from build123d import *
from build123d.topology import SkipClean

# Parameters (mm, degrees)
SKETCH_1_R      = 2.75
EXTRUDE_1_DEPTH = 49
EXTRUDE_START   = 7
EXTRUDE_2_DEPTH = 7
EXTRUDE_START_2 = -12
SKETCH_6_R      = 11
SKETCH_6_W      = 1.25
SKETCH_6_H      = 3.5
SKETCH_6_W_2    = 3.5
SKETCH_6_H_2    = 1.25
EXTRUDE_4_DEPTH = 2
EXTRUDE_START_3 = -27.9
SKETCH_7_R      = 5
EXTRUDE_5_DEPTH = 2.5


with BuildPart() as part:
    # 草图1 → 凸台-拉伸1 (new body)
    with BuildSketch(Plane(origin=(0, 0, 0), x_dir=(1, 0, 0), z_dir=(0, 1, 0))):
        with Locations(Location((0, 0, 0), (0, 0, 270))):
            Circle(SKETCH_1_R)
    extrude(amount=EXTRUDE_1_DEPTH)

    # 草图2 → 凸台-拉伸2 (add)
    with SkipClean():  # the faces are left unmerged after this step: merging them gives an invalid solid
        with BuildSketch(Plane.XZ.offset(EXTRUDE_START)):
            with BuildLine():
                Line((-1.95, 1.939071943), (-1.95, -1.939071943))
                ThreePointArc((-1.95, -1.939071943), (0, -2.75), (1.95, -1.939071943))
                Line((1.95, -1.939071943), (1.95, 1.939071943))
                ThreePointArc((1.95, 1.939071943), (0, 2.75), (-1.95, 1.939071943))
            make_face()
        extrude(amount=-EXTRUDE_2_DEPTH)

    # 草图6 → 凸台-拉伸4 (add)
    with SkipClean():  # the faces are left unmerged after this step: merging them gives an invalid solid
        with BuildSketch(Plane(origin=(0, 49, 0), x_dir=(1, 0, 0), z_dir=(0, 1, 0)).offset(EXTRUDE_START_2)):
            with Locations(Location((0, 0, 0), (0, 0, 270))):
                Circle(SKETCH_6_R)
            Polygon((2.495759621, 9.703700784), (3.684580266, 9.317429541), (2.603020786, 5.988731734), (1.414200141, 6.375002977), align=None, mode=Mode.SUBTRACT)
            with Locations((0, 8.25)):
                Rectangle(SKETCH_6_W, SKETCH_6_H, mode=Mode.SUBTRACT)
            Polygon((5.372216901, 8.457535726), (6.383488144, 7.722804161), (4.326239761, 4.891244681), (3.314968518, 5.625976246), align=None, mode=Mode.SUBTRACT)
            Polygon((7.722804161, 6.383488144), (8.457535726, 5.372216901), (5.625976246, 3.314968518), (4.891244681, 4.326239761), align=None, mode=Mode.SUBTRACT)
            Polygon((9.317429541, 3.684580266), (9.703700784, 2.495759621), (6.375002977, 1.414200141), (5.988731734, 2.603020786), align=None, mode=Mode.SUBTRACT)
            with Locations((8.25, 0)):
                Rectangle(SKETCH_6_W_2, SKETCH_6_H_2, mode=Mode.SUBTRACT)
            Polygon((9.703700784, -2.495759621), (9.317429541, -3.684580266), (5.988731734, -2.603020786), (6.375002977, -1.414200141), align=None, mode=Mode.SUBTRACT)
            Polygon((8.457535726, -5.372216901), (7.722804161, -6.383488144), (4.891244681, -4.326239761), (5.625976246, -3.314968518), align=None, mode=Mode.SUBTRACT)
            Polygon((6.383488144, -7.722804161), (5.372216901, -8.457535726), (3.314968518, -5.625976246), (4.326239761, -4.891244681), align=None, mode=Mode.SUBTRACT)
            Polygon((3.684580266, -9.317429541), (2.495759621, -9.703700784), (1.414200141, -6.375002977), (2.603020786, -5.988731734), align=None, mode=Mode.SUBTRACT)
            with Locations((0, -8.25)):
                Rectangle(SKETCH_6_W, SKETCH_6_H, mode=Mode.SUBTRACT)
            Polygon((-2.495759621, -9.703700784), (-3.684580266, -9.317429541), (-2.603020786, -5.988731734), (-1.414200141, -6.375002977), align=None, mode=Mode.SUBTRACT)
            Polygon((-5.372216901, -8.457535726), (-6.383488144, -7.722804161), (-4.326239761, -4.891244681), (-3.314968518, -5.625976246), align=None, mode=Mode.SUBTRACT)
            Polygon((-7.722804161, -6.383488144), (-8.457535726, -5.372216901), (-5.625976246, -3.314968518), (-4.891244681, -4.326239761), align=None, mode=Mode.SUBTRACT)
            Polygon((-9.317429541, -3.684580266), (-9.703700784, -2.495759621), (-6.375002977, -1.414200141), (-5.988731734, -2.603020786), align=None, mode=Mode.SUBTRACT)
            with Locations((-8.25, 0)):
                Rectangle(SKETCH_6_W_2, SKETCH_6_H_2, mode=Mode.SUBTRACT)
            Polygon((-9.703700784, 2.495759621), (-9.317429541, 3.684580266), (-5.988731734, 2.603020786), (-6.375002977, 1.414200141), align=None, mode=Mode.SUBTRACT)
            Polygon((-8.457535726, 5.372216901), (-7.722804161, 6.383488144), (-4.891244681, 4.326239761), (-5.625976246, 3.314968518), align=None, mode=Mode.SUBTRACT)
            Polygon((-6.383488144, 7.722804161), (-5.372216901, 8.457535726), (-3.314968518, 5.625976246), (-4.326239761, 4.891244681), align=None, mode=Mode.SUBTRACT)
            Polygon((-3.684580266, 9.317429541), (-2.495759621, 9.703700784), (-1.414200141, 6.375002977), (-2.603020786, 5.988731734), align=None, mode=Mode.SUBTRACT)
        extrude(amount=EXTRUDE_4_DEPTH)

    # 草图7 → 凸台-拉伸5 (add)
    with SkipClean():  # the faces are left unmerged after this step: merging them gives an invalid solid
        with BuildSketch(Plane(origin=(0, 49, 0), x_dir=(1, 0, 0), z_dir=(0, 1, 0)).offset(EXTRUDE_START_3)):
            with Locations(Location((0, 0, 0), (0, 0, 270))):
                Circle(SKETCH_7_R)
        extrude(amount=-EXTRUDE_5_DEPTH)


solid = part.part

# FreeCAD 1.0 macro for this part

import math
import FreeCAD as App
import Part
import Sketcher
Q = App.Units.Quantity


def add_polygon(sketch, points):
    """Adds a closed chain of lines whose ends are joined by coincident constraints."""
    first, n = sketch.GeometryCount, len(points)
    for a, b in zip(points, points[1:] + points[:1]):
        sketch.addGeometry(Part.LineSegment(App.Vector(*a, 0), App.Vector(*b, 0)), False)
    for i in range(n):
        sketch.addConstraint(Sketcher.Constraint("Coincident", first + i, 2, first + (i + 1) % n, 1))

doc = App.newDocument("Part")
params = doc.addObject("Spreadsheet::Sheet", "Params")
for row, (alias, value) in enumerate([
    ("sketch1_diameter", "5.5 mm"),
    ("pad1_length", "49 mm"),
    ("sketch2_radius", "2.75 mm"),
    ("pad2_length", "7 mm"),
    ("sketch3_diameter", "22 mm"),
    ("sketch3_width", "3.5 mm"),
    ("sketch3_length", "3.5 mm"),
    ("sketch3_width2", "1.25 mm"),
    ("sketch3_length2", "1.25 mm"),
    ("pad3_length", "2 mm"),
    ("sketch4_diameter", "10 mm"),
    ("pad4_length", "2.5 mm"),
], start=1):
    params.set(f"A{row}", alias)
    params.set(f"B{row}", "=" + value)
    params.setAlias(f"B{row}", alias)

body = doc.addObject("PartDesign::Body", "Body")

# Sketch on XZ plane
sketch1 = body.newObject("Sketcher::SketchObject", "Sketch")
sketch1.AttachmentSupport = (doc.getObject("XZ_Plane"), [""])
sketch1.MapMode = "FlatFace"
sketch1.addGeometry(Part.Circle(App.Vector(0, 0, 0), App.Vector(0, 0, 1), 2.8), False)
sketch1.addConstraint(Sketcher.Constraint("Coincident", 0, 3, -1, 1))
sketch1.addConstraint(Sketcher.Constraint("Diameter", 0, 5.5))
sketch1.setExpression("Constraints[1]", "Params.sketch1_diameter")
pad1 = body.newObject("PartDesign::Pad", "Pad")
pad1.Profile = sketch1
pad1.setExpression("Length", "Params.pad1_length")
pad1.Reversed = True

# Sketch on XZ plane
sketch2 = body.newObject("Sketcher::SketchObject", "Sketch001")
sketch2.AttachmentSupport = (doc.getObject("XZ_Plane"), [""])
sketch2.MapMode = "FlatFace"
sketch2.AttachmentOffset = App.Placement(App.Vector(0, 0, 7), App.Rotation())
sketch2.addGeometry(Part.LineSegment(App.Vector(-1.9, 1.9, 0), App.Vector(-1.9, -1.9, 0)), False)
sketch2.addGeometry(Part.ArcOfCircle(Part.Circle(App.Vector(0, 0, 0), App.Vector(0, 0, 1), 2.8), math.radians(-135), math.radians(-45)), False)
sketch2.addGeometry(Part.LineSegment(App.Vector(1.9, -1.9, 0), App.Vector(1.9, 1.9, 0)), False)
sketch2.addGeometry(Part.ArcOfCircle(Part.Circle(App.Vector(0, 0, 0), App.Vector(0, 0, 1), 2.8), math.radians(45), math.radians(135)), False)
sketch2.addConstraint(Sketcher.Constraint("Coincident", 0, 2, 1, 1))
sketch2.addConstraint(Sketcher.Constraint("Coincident", 1, 2, 2, 1))
sketch2.addConstraint(Sketcher.Constraint("Coincident", 2, 2, 3, 1))
sketch2.addConstraint(Sketcher.Constraint("Coincident", 3, 2, 0, 1))
sketch2.addConstraint(Sketcher.Constraint("Vertical", 0))
sketch2.addConstraint(Sketcher.Constraint("Vertical", 2))
sketch2.addConstraint(Sketcher.Constraint("Coincident", 1, 3, -1, 1))
sketch2.addConstraint(Sketcher.Constraint("Coincident", 3, 3, -1, 1))
sketch2.addConstraint(Sketcher.Constraint("Equal", 1, 3))
sketch2.addConstraint(Sketcher.Constraint("Horizontal", 0, 2, 1, 2))
sketch2.addConstraint(Sketcher.Constraint("Radius", 1, 2.75))
sketch2.addConstraint(Sketcher.Constraint("DistanceX", 0, 2, 1, 2, 3.9))
sketch2.setExpression("Constraints[10]", "Params.sketch2_radius")
pad2 = body.newObject("PartDesign::Pad", "Pad001")
pad2.Profile = sketch2
pad2.setExpression("Length", "Params.pad2_length")
pad2.Reversed = True

# Sketch on XZ plane
sketch3 = body.newObject("Sketcher::SketchObject", "Sketch002")
sketch3.AttachmentSupport = (doc.getObject("XZ_Plane"), [""])
sketch3.MapMode = "FlatFace"
sketch3.AttachmentOffset = App.Placement(App.Vector(0, 0, -37), App.Rotation())
sketch3.addGeometry(Part.Circle(App.Vector(0, 0, 0), App.Vector(0, 0, 1), 11), False)  # 0
add_polygon(sketch3, [(-6.4, -1.4), (-9.7, -2.5), (-9.3, -3.7), (-6, -2.6)])  # lines 1-4
add_polygon(sketch3, [(-5.6, -3.3), (-8.5, -5.4), (-7.7, -6.4), (-4.9, -4.3)])  # lines 5-8
add_polygon(sketch3, [(-2.6, -6), (-3.7, -9.3), (-2.5, -9.7), (-1.4, -6.4)])  # lines 9-12
add_polygon(sketch3, [(-4.3, -4.9), (-6.4, -7.7), (-5.4, -8.5), (-3.3, -5.6)])  # lines 13-16
add_polygon(sketch3, [(0.6, -6.5), (-0.6, -6.5), (-0.6, -10), (0.6, -10)])  # lines 17-20
add_polygon(sketch3, [(-6.5, 0.6), (-10, 0.6), (-10, -0.6), (-6.5, -0.6)])  # lines 21-24
add_polygon(sketch3, [(-6, 2.6), (-9.3, 3.7), (-9.7, 2.5), (-6.4, 1.4)])  # lines 25-28
add_polygon(sketch3, [(-4.9, 4.3), (-7.7, 6.4), (-8.5, 5.4), (-5.6, 3.3)])  # lines 29-32
add_polygon(sketch3, [(-3.3, 5.6), (-5.4, 8.5), (-6.4, 7.7), (-4.3, 4.9)])  # lines 33-36
add_polygon(sketch3, [(-1.4, 6.4), (-2.5, 9.7), (-3.7, 9.3), (-2.6, 6)])  # lines 37-40
add_polygon(sketch3, [(1.4, -6.4), (2.5, -9.7), (3.7, -9.3), (2.6, -6)])  # lines 41-44
add_polygon(sketch3, [(3.3, -5.6), (5.4, -8.5), (6.4, -7.7), (4.3, -4.9)])  # lines 45-48
add_polygon(sketch3, [(4.9, -4.3), (7.7, -6.4), (8.5, -5.4), (5.6, -3.3)])  # lines 49-52
add_polygon(sketch3, [(6, -2.6), (9.3, -3.7), (9.7, -2.5), (6.4, -1.4)])  # lines 53-56
add_polygon(sketch3, [(10, 0.6), (6.5, 0.6), (6.5, -0.6), (10, -0.6)])  # lines 57-60
add_polygon(sketch3, [(0.6, 10), (-0.6, 10), (-0.6, 6.5), (0.6, 6.5)])  # lines 61-64
add_polygon(sketch3, [(4.3, 4.9), (6.4, 7.7), (5.4, 8.5), (3.3, 5.6)])  # lines 65-68
add_polygon(sketch3, [(2.6, 6), (3.7, 9.3), (2.5, 9.7), (1.4, 6.4)])  # lines 69-72
add_polygon(sketch3, [(5.6, 3.3), (8.5, 5.4), (7.7, 6.4), (4.9, 4.3)])  # lines 73-76
add_polygon(sketch3, [(6.4, 1.4), (9.7, 2.5), (9.3, 3.7), (6, 2.6)])  # lines 77-80
sketch3.addConstraint(Sketcher.Constraint("Horizontal", 17))
sketch3.addConstraint(Sketcher.Constraint("Vertical", 18))
sketch3.addConstraint(Sketcher.Constraint("Horizontal", 19))
sketch3.addConstraint(Sketcher.Constraint("Vertical", 20))
sketch3.addConstraint(Sketcher.Constraint("Horizontal", 21))
sketch3.addConstraint(Sketcher.Constraint("Vertical", 22))
sketch3.addConstraint(Sketcher.Constraint("Horizontal", 23))
sketch3.addConstraint(Sketcher.Constraint("Vertical", 24))
sketch3.addConstraint(Sketcher.Constraint("Horizontal", 57))
sketch3.addConstraint(Sketcher.Constraint("Vertical", 58))
sketch3.addConstraint(Sketcher.Constraint("Horizontal", 59))
sketch3.addConstraint(Sketcher.Constraint("Vertical", 60))
sketch3.addConstraint(Sketcher.Constraint("Horizontal", 61))
sketch3.addConstraint(Sketcher.Constraint("Vertical", 62))
sketch3.addConstraint(Sketcher.Constraint("Horizontal", 63))
sketch3.addConstraint(Sketcher.Constraint("Vertical", 64))
sketch3.addConstraint(Sketcher.Constraint("Coincident", 0, 3, -1, 1))
sketch3.addConstraint(Sketcher.Constraint("Symmetric", 37, 2, 41, 2, -1, 1))
sketch3.addConstraint(Sketcher.Constraint("Symmetric", 38, 2, 42, 2, -1, 1))
sketch3.addConstraint(Sketcher.Constraint("Symmetric", 39, 2, 43, 2, -1, 1))
sketch3.addConstraint(Sketcher.Constraint("Symmetric", 40, 2, 44, 2, -1, 1))
sketch3.addConstraint(Sketcher.Constraint("Symmetric", 33, 2, 45, 2, -1, 1))
sketch3.addConstraint(Sketcher.Constraint("Symmetric", 34, 2, 46, 2, -1, 1))
sketch3.addConstraint(Sketcher.Constraint("Symmetric", 35, 2, 47, 2, -1, 1))
sketch3.addConstraint(Sketcher.Constraint("Symmetric", 36, 2, 48, 2, -1, 1))
sketch3.addConstraint(Sketcher.Constraint("Symmetric", 29, 2, 49, 2, -1, 1))
sketch3.addConstraint(Sketcher.Constraint("Symmetric", 30, 2, 50, 2, -1, 1))
sketch3.addConstraint(Sketcher.Constraint("Symmetric", 31, 2, 51, 2, -1, 1))
sketch3.addConstraint(Sketcher.Constraint("Symmetric", 32, 2, 52, 2, -1, 1))
sketch3.addConstraint(Sketcher.Constraint("Symmetric", 25, 2, 53, 2, -1, 1))
sketch3.addConstraint(Sketcher.Constraint("Symmetric", 26, 2, 54, 2, -1, 1))
sketch3.addConstraint(Sketcher.Constraint("Symmetric", 27, 2, 55, 2, -1, 1))
sketch3.addConstraint(Sketcher.Constraint("Symmetric", 28, 2, 56, 2, -1, 1))
sketch3.addConstraint(Sketcher.Constraint("Symmetric", 23, 2, 57, 2, -1, 1))
sketch3.addConstraint(Sketcher.Constraint("Symmetric", 21, 2, 59, 2, -1, 1))
sketch3.addConstraint(Sketcher.Constraint("Symmetric", 19, 2, 61, 2, -1, 1))
sketch3.addConstraint(Sketcher.Constraint("Symmetric", 17, 2, 63, 2, -1, 1))
sketch3.addConstraint(Sketcher.Constraint("Symmetric", 13, 2, 65, 2, -1, 1))
sketch3.addConstraint(Sketcher.Constraint("Symmetric", 14, 2, 66, 2, -1, 1))
sketch3.addConstraint(Sketcher.Constraint("Symmetric", 15, 2, 67, 2, -1, 1))
sketch3.addConstraint(Sketcher.Constraint("Symmetric", 16, 2, 68, 2, -1, 1))
sketch3.addConstraint(Sketcher.Constraint("Symmetric", 9, 2, 69, 2, -1, 1))
sketch3.addConstraint(Sketcher.Constraint("Symmetric", 10, 2, 70, 2, -1, 1))
sketch3.addConstraint(Sketcher.Constraint("Symmetric", 11, 2, 71, 2, -1, 1))
sketch3.addConstraint(Sketcher.Constraint("Symmetric", 12, 2, 72, 2, -1, 1))
sketch3.addConstraint(Sketcher.Constraint("Symmetric", 5, 2, 73, 2, -1, 1))
sketch3.addConstraint(Sketcher.Constraint("Symmetric", 6, 2, 74, 2, -1, 1))
sketch3.addConstraint(Sketcher.Constraint("Symmetric", 7, 2, 75, 2, -1, 1))
sketch3.addConstraint(Sketcher.Constraint("Symmetric", 8, 2, 76, 2, -1, 1))
sketch3.addConstraint(Sketcher.Constraint("Symmetric", 1, 2, 77, 2, -1, 1))
sketch3.addConstraint(Sketcher.Constraint("Symmetric", 2, 2, 78, 2, -1, 1))
sketch3.addConstraint(Sketcher.Constraint("Symmetric", 3, 2, 79, 2, -1, 1))
sketch3.addConstraint(Sketcher.Constraint("Symmetric", 4, 2, 80, 2, -1, 1))
sketch3.addConstraint(Sketcher.Constraint("Symmetric", 10, 2, 41, 2, -2))
sketch3.addConstraint(Sketcher.Constraint("Symmetric", 9, 2, 42, 2, -2))
sketch3.addConstraint(Sketcher.Constraint("Symmetric", 12, 2, 43, 2, -2))
sketch3.addConstraint(Sketcher.Constraint("Symmetric", 11, 2, 44, 2, -2))
sketch3.addConstraint(Sketcher.Constraint("Symmetric", 14, 2, 45, 2, -2))
sketch3.addConstraint(Sketcher.Constraint("Symmetric", 13, 2, 46, 2, -2))
sketch3.addConstraint(Sketcher.Constraint("Symmetric", 16, 2, 47, 2, -2))
sketch3.addConstraint(Sketcher.Constraint("Symmetric", 15, 2, 48, 2, -2))
sketch3.addConstraint(Sketcher.Constraint("Symmetric", 6, 2, 49, 2, -2))
sketch3.addConstraint(Sketcher.Constraint("Symmetric", 5, 2, 50, 2, -2))
sketch3.addConstraint(Sketcher.Constraint("Symmetric", 8, 2, 51, 2, -2))
sketch3.addConstraint(Sketcher.Constraint("Symmetric", 7, 2, 52, 2, -2))
sketch3.addConstraint(Sketcher.Constraint("Symmetric", 2, 2, 53, 2, -2))
sketch3.addConstraint(Sketcher.Constraint("Symmetric", 1, 2, 54, 2, -2))
sketch3.addConstraint(Sketcher.Constraint("Symmetric", 4, 2, 55, 2, -2))
sketch3.addConstraint(Sketcher.Constraint("Symmetric", 3, 2, 56, 2, -2))
sketch3.addConstraint(Sketcher.Constraint("Perpendicular", 1, 2))
sketch3.addConstraint(Sketcher.Constraint("Perpendicular", 2, 3))
sketch3.addConstraint(Sketcher.Constraint("Perpendicular", 3, 4))
sketch3.addConstraint(Sketcher.Constraint("Perpendicular", 5, 6))
sketch3.addConstraint(Sketcher.Constraint("Perpendicular", 6, 7))
sketch3.addConstraint(Sketcher.Constraint("Perpendicular", 7, 8))
sketch3.addConstraint(Sketcher.Constraint("Perpendicular", 9, 10))
sketch3.addConstraint(Sketcher.Constraint("Perpendicular", 10, 11))
sketch3.addConstraint(Sketcher.Constraint("Perpendicular", 11, 12))
sketch3.addConstraint(Sketcher.Constraint("Perpendicular", 13, 14))
sketch3.addConstraint(Sketcher.Constraint("Perpendicular", 14, 15))
sketch3.addConstraint(Sketcher.Constraint("Perpendicular", 15, 16))
sketch3.addConstraint(Sketcher.Constraint("Parallel", 12, 25))
sketch3.addConstraint(Sketcher.Constraint("Parallel", 16, 29))
sketch3.addConstraint(Sketcher.Constraint("Horizontal", 24, 2, 57, 2))
sketch3.addConstraint(Sketcher.Constraint("Vertical", 18, 2, 61, 2))
sketch3.addConstraint(Sketcher.Constraint("Equal", 59, 18))
sketch3.addConstraint(Sketcher.Constraint("Equal", 63, 22))
sketch3.addConstraint(Sketcher.Constraint("Equal", 3, 5))
sketch3.addConstraint(Sketcher.Constraint("Equal", 4, 6))
sketch3.addConstraint(Sketcher.Constraint("Equal", 7, 9))
sketch3.addConstraint(Sketcher.Constraint("Equal", 8, 10))
sketch3.addConstraint(Sketcher.Constraint("Equal", 11, 13))
sketch3.addConstraint(Sketcher.Constraint("Equal", 12, 14))
sketch3.addConstraint(Sketcher.Constraint("Diameter", 0, 22.0))
sketch3.addConstraint(Sketcher.Constraint("Angle", 1, Q("-162 deg")))
sketch3.addConstraint(Sketcher.Constraint("Angle", 5, Q("-144 deg")))
sketch3.addConstraint(Sketcher.Constraint("DistanceX", 21, 2, 21, 1, 3.5))
sketch3.addConstraint(Sketcher.Constraint("DistanceY", 18, 2, -1, 1, 10.0))
sketch3.addConstraint(Sketcher.Constraint("DistanceX", 21, 2, -1, 1, 10.0))
sketch3.addConstraint(Sketcher.Constraint("Distance", 1, 3.5))
sketch3.addConstraint(Sketcher.Constraint("DistanceX", 17, 2, 17, 1, 1.25))
sketch3.addConstraint(Sketcher.Constraint("Distance", 2, 1.25))
sketch3.addConstraint(Sketcher.Constraint("DistanceX", 1, 2, -1, 1, 9.703701))
sketch3.addConstraint(Sketcher.Constraint("DistanceY", 4, 2, -1, 1, 1.4142))
sketch3.addConstraint(Sketcher.Constraint("DistanceY", 10, 2, -1, 1, 9.703701))
sketch3.addConstraint(Sketcher.Constraint("DistanceX", 11, 2, -1, 1, 1.4142))
sketch3.addConstraint(Sketcher.Constraint("DistanceY", 6, 2, -1, 1, 6.383488))
sketch3.addConstraint(Sketcher.Constraint("DistanceX", 13, 2, -1, 1, 6.383488))
sketch3.addConstraint(Sketcher.Constraint("DistanceX", 5, 2, -1, 1, 8.457536))
sketch3.addConstraint(Sketcher.Constraint("DistanceY", 13, 2, -1, 1, 7.722804))
sketch3.setExpression("Constraints[173]", "Params.sketch3_diameter")
sketch3.setExpression("Constraints[176]", "Params.sketch3_width")
sketch3.setExpression("Constraints[179]", "Params.sketch3_length")
sketch3.setExpression("Constraints[180]", "Params.sketch3_width2")
sketch3.setExpression("Constraints[181]", "Params.sketch3_length2")
pad3 = body.newObject("PartDesign::Pad", "Pad002")
pad3.Profile = sketch3
pad3.setExpression("Length", "Params.pad3_length")
pad3.Reversed = True

# Sketch on XZ plane
sketch4 = body.newObject("Sketcher::SketchObject", "Sketch003")
sketch4.AttachmentSupport = (doc.getObject("XZ_Plane"), [""])
sketch4.MapMode = "FlatFace"
sketch4.AttachmentOffset = App.Placement(App.Vector(0, 0, -21.1), App.Rotation())
sketch4.addGeometry(Part.Circle(App.Vector(0, 0, 0), App.Vector(0, 0, 1), 5), False)
sketch4.addConstraint(Sketcher.Constraint("Coincident", 0, 3, -1, 1))
sketch4.addConstraint(Sketcher.Constraint("Diameter", 0, 10.0))
sketch4.setExpression("Constraints[1]", "Params.sketch4_diameter")
pad4 = body.newObject("PartDesign::Pad", "Pad003")
pad4.Profile = sketch4
pad4.setExpression("Length", "Params.pad4_length")

doc.recompute()
